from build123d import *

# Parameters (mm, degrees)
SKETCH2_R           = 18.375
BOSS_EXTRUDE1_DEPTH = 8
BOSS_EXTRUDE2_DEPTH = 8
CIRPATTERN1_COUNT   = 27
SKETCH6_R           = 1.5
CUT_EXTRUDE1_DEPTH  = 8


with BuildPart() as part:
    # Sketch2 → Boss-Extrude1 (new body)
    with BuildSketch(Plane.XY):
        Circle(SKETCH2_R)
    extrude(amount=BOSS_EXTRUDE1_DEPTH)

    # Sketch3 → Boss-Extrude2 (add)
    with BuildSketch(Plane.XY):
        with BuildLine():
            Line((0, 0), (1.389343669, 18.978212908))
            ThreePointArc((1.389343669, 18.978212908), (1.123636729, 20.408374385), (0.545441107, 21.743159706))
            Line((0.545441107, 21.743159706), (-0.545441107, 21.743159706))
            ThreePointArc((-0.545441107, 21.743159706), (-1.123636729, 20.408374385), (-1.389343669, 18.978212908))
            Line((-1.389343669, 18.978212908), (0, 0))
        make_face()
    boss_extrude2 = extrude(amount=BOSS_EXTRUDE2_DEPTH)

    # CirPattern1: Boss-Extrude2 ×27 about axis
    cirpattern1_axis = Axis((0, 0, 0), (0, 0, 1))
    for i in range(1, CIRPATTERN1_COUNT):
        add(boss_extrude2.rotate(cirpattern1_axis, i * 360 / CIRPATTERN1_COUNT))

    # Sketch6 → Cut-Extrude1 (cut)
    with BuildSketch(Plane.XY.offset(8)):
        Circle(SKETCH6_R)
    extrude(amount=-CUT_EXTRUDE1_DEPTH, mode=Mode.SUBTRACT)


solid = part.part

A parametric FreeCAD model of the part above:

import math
import FreeCAD as App
import Part
import Sketcher
from FreeCAD import Vector

doc = App.newDocument("Part")
body = doc.addObject("PartDesign::Body", "Body")

sketch1 = body.newObject("Sketcher::SketchObject", "Sketch")
sketch1.AttachmentSupport = (doc.getObject("XY_Plane"), [""])
sketch1.MapMode = "FlatFace"
sketch1.addGeometry(Part.Circle(Vector(0, 0, 0), Vector(0, 0, 1), 18.375), False)
sketch1.addConstraint([
    Sketcher.Constraint("Coincident", 0, 3, -1, 1),
    Sketcher.Constraint("Diameter", 0, 36.75),
])
pad1 = body.newObject("PartDesign::Pad", "Pad")
pad1.Profile = sketch1
pad1.Length = 8

sketch2 = body.newObject("Sketcher::SketchObject", "Sketch001")
sketch2.AttachmentSupport = (doc.getObject("XY_Plane"), [""])
sketch2.MapMode = "FlatFace"
sketch2.addGeometry([
    Part.LineSegment(Vector(0, 0, 0), Vector(1.389344, 18.978213, 0)),
    Part.ArcOfCircle(Part.Circle(Vector(-5.070652, 18.517786, 0), Vector(0, 0, 1), 6.476383), math.radians(4.076779), math.radians(29.869146)),
    Part.LineSegment(Vector(0.545441, 21.74316, 0), Vector(-0.545441, 21.74316, 0)),
    Part.ArcOfCircle(Part.Circle(Vector(5.070652, 18.517786, 0), Vector(0, 0, 1), 6.476383), math.radians(150.130854), math.radians(175.923221)),
    Part.LineSegment(Vector(-1.389344, 18.978213, 0), Vector(0, 0, 0)),
], False)
sketch2.addConstraint([
    Sketcher.Constraint("Coincident", 0, 2, 1, 1),
    Sketcher.Constraint("Coincident", 1, 2, 2, 1),
    Sketcher.Constraint("Coincident", 2, 2, 3, 1),
    Sketcher.Constraint("Coincident", 3, 2, 4, 1),
    Sketcher.Constraint("Coincident", 4, 2, 0, 1),
    Sketcher.Constraint("Horizontal", 2),
    Sketcher.Constraint("Coincident", 4, 2, -1, 1),
    Sketcher.Constraint("Equal", 1, 3),
    Sketcher.Constraint("Symmetric", 1, 3, 3, 3, -2),
    Sketcher.Constraint("Horizontal", 0, 2, 3, 2),
    Sketcher.Constraint("Distance", 0, 19.029),
    Sketcher.Constraint("Radius", 1, 6.476383),
    Sketcher.Constraint("DistanceX", 2, 2, 2, 1, 1.090882),
    Sketcher.Constraint("DistanceX", 1, 3, -1, 1, 5.070652),
    Sketcher.Constraint("DistanceY", -1, 1, 1, 2, 21.74316),
])
pad2 = body.newObject("PartDesign::Pad", "Pad001")
pad2.Profile = sketch2
pad2.Length = 8
doc.recompute()

polarpattern = body.newObject("PartDesign::PolarPattern", "PolarPattern")
polarpattern.Originals = [pad2]
polarpattern.Axis = (doc.getObject("Z_Axis"), [""])
polarpattern.Angle = 360
polarpattern.Occurrences = 27
body.Tip = polarpattern

sketch3 = body.newObject("Sketcher::SketchObject", "Sketch002")
sketch3.AttachmentSupport = (doc.getObject("XY_Plane"), [""])
sketch3.MapMode = "FlatFace"
sketch3.AttachmentOffset = App.Placement(Vector(0, 0, 8), App.Rotation())
sketch3.addGeometry(Part.Circle(Vector(0, 0, 0), Vector(0, 0, 1), 1.5), False)
sketch3.addConstraint([
    Sketcher.Constraint("Coincident", 0, 3, -1, 1),
    Sketcher.Constraint("Diameter", 0, 3.0),
])
pocket1 = body.newObject("PartDesign::Pocket", "Pocket")
pocket1.Profile = sketch3
pocket1.Length = 8

doc.recompute()
